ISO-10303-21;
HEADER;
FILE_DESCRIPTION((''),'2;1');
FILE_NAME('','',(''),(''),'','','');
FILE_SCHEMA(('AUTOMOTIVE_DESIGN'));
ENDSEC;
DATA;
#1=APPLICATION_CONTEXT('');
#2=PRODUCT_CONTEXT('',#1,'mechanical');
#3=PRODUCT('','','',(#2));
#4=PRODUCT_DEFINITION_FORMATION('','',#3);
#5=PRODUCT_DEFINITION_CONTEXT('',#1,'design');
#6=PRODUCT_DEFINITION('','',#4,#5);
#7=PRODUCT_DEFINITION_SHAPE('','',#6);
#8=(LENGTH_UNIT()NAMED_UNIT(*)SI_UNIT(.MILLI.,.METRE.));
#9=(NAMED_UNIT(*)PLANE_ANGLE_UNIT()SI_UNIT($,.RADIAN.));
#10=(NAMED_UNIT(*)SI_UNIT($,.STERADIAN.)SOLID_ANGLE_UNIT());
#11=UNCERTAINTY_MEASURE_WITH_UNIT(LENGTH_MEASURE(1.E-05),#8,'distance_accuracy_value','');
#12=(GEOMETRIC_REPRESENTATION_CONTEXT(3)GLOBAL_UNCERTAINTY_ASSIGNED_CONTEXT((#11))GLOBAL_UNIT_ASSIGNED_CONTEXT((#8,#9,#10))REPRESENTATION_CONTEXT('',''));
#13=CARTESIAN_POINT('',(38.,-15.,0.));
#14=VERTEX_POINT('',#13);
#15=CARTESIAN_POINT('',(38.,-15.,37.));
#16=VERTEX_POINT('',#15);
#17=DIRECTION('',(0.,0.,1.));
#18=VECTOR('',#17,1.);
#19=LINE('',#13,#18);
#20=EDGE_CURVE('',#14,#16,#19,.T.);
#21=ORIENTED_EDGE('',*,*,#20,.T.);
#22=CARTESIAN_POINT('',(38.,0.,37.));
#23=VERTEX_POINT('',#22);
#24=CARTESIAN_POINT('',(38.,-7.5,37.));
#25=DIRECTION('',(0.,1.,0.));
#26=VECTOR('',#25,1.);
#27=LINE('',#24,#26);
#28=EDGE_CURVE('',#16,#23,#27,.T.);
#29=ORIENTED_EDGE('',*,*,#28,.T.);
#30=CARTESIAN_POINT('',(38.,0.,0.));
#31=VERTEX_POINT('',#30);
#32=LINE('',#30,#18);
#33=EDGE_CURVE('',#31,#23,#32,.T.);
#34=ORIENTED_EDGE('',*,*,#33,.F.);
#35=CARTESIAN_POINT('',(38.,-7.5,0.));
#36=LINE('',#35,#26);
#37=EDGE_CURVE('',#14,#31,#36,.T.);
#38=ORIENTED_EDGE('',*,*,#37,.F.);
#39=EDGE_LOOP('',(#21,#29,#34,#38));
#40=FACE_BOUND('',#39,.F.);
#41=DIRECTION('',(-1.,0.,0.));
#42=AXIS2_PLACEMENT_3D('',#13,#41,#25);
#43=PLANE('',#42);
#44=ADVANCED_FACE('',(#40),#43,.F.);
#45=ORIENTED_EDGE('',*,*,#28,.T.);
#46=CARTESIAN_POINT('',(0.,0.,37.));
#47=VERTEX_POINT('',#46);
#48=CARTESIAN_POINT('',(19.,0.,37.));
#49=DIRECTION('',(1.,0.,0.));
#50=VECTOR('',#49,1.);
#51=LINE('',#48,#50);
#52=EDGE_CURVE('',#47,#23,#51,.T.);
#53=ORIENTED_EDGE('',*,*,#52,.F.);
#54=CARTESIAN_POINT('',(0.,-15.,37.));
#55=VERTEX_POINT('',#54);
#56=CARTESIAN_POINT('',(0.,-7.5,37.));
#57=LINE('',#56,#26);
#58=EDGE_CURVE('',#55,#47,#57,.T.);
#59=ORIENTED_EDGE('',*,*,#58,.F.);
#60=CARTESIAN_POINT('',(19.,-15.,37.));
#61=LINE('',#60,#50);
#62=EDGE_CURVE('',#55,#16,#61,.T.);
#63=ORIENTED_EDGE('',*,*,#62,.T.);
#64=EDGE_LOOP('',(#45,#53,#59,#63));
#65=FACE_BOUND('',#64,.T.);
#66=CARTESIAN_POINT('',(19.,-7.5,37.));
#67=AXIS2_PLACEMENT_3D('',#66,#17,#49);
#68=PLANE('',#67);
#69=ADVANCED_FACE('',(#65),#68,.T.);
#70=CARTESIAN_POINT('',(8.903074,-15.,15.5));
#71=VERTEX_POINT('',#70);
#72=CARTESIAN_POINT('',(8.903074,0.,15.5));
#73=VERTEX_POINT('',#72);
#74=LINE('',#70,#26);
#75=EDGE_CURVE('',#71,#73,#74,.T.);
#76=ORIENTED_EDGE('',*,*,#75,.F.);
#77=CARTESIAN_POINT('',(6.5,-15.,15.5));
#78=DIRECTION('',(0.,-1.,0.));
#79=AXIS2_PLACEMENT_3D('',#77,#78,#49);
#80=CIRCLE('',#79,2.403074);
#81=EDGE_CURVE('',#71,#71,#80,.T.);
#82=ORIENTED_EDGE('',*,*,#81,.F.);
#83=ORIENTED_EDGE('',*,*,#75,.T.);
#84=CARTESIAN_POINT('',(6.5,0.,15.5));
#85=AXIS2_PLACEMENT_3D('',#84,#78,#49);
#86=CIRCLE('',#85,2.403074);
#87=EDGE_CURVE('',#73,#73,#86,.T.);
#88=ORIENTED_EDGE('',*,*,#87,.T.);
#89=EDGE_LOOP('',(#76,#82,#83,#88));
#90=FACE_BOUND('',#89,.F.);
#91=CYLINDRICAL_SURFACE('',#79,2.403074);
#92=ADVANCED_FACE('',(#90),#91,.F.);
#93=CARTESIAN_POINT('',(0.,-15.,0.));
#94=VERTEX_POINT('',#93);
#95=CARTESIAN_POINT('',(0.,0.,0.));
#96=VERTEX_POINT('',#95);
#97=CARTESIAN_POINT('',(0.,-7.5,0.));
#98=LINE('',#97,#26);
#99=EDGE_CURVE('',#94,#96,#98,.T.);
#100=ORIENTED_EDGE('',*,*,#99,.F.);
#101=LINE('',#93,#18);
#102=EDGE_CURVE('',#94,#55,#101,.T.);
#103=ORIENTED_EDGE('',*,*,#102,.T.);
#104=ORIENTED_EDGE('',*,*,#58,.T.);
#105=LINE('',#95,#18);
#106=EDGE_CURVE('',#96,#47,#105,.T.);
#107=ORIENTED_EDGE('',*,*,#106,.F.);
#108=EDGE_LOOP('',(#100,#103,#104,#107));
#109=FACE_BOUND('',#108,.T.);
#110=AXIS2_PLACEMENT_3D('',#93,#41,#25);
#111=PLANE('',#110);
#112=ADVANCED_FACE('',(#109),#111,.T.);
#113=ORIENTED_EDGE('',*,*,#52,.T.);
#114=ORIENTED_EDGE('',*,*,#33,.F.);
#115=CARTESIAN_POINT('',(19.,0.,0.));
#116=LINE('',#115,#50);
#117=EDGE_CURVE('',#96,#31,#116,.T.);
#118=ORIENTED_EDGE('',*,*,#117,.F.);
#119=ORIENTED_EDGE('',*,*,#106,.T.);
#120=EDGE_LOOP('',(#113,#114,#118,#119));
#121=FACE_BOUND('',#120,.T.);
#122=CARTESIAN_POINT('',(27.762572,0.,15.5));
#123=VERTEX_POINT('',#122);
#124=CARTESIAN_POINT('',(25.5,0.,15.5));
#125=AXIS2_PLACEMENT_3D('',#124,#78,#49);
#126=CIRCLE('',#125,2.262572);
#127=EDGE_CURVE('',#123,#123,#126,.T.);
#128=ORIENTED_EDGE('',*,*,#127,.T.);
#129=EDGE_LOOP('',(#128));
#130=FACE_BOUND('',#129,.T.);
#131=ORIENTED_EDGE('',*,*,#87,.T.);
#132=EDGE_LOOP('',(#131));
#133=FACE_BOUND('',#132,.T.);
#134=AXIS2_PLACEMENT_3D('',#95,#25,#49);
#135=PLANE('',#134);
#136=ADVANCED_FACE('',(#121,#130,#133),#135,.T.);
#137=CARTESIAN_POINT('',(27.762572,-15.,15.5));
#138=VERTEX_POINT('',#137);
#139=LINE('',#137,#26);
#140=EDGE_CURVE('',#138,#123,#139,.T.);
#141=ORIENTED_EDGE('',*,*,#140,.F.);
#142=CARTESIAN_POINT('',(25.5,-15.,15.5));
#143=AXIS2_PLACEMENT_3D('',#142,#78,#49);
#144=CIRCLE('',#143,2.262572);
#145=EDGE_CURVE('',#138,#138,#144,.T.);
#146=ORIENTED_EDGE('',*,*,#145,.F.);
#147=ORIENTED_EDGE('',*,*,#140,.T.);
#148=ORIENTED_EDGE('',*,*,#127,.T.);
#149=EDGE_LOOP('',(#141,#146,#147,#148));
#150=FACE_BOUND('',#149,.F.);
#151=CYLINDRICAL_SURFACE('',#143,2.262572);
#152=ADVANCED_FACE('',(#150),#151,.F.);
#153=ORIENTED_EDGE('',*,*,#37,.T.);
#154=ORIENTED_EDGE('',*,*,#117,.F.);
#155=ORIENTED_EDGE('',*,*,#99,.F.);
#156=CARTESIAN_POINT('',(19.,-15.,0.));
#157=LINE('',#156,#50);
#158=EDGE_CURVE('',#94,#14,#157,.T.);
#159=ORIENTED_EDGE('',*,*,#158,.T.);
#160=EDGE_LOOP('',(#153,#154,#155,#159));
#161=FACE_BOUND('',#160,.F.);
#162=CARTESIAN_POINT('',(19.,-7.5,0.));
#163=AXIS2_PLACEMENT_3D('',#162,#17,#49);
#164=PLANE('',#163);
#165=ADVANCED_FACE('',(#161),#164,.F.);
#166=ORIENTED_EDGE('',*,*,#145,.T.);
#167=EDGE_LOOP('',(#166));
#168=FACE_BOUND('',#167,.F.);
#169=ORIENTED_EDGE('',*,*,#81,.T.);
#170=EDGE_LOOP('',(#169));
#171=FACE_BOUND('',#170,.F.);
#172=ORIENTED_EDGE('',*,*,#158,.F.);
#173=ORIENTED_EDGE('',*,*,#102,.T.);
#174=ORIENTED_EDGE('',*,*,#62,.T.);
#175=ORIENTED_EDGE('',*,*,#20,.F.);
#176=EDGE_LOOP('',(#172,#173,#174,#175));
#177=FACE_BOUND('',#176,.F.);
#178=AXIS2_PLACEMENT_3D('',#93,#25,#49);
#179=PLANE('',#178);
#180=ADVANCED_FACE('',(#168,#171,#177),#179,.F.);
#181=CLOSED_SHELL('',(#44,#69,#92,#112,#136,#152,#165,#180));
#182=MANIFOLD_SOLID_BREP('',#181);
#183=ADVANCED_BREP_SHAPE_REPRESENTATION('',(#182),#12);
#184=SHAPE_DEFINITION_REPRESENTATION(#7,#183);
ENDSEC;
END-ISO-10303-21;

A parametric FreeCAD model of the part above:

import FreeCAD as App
import Part
import Sketcher

V = App.Vector

doc = App.newDocument("Part")
body = doc.addObject("PartDesign::Body", "Body")

# Sketch on XY plane
sketch1 = body.newObject("Sketcher::SketchObject", "Sketch")
sketch1.AttachmentSupport = (doc.getObject("XY_Plane"), [""])
sketch1.MapMode = "FlatFace"
sketch1.addGeometry([
    Part.LineSegment(V(0, 0, 0), V(0, -15, 0)),
    Part.LineSegment(V(0, -15, 0), V(38, -15, 0)),
    Part.LineSegment(V(38, -15, 0), V(38, 0, 0)),
    Part.LineSegment(V(38, 0, 0), V(0, 0, 0)),
], False)
sketch1.addConstraint([
    Sketcher.Constraint("Coincident", 0, 2, 1, 1),
    Sketcher.Constraint("Coincident", 1, 2, 2, 1),
    Sketcher.Constraint("Coincident", 2, 2, 3, 1),
    Sketcher.Constraint("Coincident", 3, 2, 0, 1),
    Sketcher.Constraint("Vertical", 0),
    Sketcher.Constraint("Horizontal", 1),
    Sketcher.Constraint("Vertical", 2),
    Sketcher.Constraint("Horizontal", 3),
    Sketcher.Constraint("Coincident", 3, 2, -1, 1),
    Sketcher.Constraint("DistanceX", 1, 1, 1, 2, 38.0),
    Sketcher.Constraint("DistanceY", 0, 2, 0, 1, 15.0),
])
pad1 = body.newObject("PartDesign::Pad", "Pad")
pad1.Profile = sketch1
pad1.Length = 37

# Sketch on XZ plane
sketch2 = body.newObject("Sketcher::SketchObject", "Sketch001")
sketch2.AttachmentSupport = (doc.getObject("XZ_Plane"), [""])
sketch2.MapMode = "FlatFace"
sketch2.AttachmentOffset = App.Placement(V(0, 0, 15), App.Rotation())
sketch2.addGeometry([
    Part.Circle(V(6.5, 15.5, 0), V(0, 0, 1), 2.4),
    Part.Circle(V(25.5, 15.5, 0), V(0, 0, 1), 2.3),
], False)
sketch2.addConstraint([
    Sketcher.Constraint("Horizontal", 0, 3, 1, 3),
    Sketcher.Constraint("DistanceX", 0, 3, 1, 3, 19.0),
    Sketcher.Constraint("DistanceX", -1, 1, 0, 3, 6.5),
    Sketcher.Constraint("DistanceY", -1, 1, 0, 3, 15.5),
    Sketcher.Constraint("Diameter", 0, 4.806148),
    Sketcher.Constraint("Diameter", 1, 4.525144),
])
pocket1 = body.newObject("PartDesign::Pocket", "Pocket")
pocket1.Profile = sketch2
pocket1.Type = "ThroughAll"

doc.recompute()
